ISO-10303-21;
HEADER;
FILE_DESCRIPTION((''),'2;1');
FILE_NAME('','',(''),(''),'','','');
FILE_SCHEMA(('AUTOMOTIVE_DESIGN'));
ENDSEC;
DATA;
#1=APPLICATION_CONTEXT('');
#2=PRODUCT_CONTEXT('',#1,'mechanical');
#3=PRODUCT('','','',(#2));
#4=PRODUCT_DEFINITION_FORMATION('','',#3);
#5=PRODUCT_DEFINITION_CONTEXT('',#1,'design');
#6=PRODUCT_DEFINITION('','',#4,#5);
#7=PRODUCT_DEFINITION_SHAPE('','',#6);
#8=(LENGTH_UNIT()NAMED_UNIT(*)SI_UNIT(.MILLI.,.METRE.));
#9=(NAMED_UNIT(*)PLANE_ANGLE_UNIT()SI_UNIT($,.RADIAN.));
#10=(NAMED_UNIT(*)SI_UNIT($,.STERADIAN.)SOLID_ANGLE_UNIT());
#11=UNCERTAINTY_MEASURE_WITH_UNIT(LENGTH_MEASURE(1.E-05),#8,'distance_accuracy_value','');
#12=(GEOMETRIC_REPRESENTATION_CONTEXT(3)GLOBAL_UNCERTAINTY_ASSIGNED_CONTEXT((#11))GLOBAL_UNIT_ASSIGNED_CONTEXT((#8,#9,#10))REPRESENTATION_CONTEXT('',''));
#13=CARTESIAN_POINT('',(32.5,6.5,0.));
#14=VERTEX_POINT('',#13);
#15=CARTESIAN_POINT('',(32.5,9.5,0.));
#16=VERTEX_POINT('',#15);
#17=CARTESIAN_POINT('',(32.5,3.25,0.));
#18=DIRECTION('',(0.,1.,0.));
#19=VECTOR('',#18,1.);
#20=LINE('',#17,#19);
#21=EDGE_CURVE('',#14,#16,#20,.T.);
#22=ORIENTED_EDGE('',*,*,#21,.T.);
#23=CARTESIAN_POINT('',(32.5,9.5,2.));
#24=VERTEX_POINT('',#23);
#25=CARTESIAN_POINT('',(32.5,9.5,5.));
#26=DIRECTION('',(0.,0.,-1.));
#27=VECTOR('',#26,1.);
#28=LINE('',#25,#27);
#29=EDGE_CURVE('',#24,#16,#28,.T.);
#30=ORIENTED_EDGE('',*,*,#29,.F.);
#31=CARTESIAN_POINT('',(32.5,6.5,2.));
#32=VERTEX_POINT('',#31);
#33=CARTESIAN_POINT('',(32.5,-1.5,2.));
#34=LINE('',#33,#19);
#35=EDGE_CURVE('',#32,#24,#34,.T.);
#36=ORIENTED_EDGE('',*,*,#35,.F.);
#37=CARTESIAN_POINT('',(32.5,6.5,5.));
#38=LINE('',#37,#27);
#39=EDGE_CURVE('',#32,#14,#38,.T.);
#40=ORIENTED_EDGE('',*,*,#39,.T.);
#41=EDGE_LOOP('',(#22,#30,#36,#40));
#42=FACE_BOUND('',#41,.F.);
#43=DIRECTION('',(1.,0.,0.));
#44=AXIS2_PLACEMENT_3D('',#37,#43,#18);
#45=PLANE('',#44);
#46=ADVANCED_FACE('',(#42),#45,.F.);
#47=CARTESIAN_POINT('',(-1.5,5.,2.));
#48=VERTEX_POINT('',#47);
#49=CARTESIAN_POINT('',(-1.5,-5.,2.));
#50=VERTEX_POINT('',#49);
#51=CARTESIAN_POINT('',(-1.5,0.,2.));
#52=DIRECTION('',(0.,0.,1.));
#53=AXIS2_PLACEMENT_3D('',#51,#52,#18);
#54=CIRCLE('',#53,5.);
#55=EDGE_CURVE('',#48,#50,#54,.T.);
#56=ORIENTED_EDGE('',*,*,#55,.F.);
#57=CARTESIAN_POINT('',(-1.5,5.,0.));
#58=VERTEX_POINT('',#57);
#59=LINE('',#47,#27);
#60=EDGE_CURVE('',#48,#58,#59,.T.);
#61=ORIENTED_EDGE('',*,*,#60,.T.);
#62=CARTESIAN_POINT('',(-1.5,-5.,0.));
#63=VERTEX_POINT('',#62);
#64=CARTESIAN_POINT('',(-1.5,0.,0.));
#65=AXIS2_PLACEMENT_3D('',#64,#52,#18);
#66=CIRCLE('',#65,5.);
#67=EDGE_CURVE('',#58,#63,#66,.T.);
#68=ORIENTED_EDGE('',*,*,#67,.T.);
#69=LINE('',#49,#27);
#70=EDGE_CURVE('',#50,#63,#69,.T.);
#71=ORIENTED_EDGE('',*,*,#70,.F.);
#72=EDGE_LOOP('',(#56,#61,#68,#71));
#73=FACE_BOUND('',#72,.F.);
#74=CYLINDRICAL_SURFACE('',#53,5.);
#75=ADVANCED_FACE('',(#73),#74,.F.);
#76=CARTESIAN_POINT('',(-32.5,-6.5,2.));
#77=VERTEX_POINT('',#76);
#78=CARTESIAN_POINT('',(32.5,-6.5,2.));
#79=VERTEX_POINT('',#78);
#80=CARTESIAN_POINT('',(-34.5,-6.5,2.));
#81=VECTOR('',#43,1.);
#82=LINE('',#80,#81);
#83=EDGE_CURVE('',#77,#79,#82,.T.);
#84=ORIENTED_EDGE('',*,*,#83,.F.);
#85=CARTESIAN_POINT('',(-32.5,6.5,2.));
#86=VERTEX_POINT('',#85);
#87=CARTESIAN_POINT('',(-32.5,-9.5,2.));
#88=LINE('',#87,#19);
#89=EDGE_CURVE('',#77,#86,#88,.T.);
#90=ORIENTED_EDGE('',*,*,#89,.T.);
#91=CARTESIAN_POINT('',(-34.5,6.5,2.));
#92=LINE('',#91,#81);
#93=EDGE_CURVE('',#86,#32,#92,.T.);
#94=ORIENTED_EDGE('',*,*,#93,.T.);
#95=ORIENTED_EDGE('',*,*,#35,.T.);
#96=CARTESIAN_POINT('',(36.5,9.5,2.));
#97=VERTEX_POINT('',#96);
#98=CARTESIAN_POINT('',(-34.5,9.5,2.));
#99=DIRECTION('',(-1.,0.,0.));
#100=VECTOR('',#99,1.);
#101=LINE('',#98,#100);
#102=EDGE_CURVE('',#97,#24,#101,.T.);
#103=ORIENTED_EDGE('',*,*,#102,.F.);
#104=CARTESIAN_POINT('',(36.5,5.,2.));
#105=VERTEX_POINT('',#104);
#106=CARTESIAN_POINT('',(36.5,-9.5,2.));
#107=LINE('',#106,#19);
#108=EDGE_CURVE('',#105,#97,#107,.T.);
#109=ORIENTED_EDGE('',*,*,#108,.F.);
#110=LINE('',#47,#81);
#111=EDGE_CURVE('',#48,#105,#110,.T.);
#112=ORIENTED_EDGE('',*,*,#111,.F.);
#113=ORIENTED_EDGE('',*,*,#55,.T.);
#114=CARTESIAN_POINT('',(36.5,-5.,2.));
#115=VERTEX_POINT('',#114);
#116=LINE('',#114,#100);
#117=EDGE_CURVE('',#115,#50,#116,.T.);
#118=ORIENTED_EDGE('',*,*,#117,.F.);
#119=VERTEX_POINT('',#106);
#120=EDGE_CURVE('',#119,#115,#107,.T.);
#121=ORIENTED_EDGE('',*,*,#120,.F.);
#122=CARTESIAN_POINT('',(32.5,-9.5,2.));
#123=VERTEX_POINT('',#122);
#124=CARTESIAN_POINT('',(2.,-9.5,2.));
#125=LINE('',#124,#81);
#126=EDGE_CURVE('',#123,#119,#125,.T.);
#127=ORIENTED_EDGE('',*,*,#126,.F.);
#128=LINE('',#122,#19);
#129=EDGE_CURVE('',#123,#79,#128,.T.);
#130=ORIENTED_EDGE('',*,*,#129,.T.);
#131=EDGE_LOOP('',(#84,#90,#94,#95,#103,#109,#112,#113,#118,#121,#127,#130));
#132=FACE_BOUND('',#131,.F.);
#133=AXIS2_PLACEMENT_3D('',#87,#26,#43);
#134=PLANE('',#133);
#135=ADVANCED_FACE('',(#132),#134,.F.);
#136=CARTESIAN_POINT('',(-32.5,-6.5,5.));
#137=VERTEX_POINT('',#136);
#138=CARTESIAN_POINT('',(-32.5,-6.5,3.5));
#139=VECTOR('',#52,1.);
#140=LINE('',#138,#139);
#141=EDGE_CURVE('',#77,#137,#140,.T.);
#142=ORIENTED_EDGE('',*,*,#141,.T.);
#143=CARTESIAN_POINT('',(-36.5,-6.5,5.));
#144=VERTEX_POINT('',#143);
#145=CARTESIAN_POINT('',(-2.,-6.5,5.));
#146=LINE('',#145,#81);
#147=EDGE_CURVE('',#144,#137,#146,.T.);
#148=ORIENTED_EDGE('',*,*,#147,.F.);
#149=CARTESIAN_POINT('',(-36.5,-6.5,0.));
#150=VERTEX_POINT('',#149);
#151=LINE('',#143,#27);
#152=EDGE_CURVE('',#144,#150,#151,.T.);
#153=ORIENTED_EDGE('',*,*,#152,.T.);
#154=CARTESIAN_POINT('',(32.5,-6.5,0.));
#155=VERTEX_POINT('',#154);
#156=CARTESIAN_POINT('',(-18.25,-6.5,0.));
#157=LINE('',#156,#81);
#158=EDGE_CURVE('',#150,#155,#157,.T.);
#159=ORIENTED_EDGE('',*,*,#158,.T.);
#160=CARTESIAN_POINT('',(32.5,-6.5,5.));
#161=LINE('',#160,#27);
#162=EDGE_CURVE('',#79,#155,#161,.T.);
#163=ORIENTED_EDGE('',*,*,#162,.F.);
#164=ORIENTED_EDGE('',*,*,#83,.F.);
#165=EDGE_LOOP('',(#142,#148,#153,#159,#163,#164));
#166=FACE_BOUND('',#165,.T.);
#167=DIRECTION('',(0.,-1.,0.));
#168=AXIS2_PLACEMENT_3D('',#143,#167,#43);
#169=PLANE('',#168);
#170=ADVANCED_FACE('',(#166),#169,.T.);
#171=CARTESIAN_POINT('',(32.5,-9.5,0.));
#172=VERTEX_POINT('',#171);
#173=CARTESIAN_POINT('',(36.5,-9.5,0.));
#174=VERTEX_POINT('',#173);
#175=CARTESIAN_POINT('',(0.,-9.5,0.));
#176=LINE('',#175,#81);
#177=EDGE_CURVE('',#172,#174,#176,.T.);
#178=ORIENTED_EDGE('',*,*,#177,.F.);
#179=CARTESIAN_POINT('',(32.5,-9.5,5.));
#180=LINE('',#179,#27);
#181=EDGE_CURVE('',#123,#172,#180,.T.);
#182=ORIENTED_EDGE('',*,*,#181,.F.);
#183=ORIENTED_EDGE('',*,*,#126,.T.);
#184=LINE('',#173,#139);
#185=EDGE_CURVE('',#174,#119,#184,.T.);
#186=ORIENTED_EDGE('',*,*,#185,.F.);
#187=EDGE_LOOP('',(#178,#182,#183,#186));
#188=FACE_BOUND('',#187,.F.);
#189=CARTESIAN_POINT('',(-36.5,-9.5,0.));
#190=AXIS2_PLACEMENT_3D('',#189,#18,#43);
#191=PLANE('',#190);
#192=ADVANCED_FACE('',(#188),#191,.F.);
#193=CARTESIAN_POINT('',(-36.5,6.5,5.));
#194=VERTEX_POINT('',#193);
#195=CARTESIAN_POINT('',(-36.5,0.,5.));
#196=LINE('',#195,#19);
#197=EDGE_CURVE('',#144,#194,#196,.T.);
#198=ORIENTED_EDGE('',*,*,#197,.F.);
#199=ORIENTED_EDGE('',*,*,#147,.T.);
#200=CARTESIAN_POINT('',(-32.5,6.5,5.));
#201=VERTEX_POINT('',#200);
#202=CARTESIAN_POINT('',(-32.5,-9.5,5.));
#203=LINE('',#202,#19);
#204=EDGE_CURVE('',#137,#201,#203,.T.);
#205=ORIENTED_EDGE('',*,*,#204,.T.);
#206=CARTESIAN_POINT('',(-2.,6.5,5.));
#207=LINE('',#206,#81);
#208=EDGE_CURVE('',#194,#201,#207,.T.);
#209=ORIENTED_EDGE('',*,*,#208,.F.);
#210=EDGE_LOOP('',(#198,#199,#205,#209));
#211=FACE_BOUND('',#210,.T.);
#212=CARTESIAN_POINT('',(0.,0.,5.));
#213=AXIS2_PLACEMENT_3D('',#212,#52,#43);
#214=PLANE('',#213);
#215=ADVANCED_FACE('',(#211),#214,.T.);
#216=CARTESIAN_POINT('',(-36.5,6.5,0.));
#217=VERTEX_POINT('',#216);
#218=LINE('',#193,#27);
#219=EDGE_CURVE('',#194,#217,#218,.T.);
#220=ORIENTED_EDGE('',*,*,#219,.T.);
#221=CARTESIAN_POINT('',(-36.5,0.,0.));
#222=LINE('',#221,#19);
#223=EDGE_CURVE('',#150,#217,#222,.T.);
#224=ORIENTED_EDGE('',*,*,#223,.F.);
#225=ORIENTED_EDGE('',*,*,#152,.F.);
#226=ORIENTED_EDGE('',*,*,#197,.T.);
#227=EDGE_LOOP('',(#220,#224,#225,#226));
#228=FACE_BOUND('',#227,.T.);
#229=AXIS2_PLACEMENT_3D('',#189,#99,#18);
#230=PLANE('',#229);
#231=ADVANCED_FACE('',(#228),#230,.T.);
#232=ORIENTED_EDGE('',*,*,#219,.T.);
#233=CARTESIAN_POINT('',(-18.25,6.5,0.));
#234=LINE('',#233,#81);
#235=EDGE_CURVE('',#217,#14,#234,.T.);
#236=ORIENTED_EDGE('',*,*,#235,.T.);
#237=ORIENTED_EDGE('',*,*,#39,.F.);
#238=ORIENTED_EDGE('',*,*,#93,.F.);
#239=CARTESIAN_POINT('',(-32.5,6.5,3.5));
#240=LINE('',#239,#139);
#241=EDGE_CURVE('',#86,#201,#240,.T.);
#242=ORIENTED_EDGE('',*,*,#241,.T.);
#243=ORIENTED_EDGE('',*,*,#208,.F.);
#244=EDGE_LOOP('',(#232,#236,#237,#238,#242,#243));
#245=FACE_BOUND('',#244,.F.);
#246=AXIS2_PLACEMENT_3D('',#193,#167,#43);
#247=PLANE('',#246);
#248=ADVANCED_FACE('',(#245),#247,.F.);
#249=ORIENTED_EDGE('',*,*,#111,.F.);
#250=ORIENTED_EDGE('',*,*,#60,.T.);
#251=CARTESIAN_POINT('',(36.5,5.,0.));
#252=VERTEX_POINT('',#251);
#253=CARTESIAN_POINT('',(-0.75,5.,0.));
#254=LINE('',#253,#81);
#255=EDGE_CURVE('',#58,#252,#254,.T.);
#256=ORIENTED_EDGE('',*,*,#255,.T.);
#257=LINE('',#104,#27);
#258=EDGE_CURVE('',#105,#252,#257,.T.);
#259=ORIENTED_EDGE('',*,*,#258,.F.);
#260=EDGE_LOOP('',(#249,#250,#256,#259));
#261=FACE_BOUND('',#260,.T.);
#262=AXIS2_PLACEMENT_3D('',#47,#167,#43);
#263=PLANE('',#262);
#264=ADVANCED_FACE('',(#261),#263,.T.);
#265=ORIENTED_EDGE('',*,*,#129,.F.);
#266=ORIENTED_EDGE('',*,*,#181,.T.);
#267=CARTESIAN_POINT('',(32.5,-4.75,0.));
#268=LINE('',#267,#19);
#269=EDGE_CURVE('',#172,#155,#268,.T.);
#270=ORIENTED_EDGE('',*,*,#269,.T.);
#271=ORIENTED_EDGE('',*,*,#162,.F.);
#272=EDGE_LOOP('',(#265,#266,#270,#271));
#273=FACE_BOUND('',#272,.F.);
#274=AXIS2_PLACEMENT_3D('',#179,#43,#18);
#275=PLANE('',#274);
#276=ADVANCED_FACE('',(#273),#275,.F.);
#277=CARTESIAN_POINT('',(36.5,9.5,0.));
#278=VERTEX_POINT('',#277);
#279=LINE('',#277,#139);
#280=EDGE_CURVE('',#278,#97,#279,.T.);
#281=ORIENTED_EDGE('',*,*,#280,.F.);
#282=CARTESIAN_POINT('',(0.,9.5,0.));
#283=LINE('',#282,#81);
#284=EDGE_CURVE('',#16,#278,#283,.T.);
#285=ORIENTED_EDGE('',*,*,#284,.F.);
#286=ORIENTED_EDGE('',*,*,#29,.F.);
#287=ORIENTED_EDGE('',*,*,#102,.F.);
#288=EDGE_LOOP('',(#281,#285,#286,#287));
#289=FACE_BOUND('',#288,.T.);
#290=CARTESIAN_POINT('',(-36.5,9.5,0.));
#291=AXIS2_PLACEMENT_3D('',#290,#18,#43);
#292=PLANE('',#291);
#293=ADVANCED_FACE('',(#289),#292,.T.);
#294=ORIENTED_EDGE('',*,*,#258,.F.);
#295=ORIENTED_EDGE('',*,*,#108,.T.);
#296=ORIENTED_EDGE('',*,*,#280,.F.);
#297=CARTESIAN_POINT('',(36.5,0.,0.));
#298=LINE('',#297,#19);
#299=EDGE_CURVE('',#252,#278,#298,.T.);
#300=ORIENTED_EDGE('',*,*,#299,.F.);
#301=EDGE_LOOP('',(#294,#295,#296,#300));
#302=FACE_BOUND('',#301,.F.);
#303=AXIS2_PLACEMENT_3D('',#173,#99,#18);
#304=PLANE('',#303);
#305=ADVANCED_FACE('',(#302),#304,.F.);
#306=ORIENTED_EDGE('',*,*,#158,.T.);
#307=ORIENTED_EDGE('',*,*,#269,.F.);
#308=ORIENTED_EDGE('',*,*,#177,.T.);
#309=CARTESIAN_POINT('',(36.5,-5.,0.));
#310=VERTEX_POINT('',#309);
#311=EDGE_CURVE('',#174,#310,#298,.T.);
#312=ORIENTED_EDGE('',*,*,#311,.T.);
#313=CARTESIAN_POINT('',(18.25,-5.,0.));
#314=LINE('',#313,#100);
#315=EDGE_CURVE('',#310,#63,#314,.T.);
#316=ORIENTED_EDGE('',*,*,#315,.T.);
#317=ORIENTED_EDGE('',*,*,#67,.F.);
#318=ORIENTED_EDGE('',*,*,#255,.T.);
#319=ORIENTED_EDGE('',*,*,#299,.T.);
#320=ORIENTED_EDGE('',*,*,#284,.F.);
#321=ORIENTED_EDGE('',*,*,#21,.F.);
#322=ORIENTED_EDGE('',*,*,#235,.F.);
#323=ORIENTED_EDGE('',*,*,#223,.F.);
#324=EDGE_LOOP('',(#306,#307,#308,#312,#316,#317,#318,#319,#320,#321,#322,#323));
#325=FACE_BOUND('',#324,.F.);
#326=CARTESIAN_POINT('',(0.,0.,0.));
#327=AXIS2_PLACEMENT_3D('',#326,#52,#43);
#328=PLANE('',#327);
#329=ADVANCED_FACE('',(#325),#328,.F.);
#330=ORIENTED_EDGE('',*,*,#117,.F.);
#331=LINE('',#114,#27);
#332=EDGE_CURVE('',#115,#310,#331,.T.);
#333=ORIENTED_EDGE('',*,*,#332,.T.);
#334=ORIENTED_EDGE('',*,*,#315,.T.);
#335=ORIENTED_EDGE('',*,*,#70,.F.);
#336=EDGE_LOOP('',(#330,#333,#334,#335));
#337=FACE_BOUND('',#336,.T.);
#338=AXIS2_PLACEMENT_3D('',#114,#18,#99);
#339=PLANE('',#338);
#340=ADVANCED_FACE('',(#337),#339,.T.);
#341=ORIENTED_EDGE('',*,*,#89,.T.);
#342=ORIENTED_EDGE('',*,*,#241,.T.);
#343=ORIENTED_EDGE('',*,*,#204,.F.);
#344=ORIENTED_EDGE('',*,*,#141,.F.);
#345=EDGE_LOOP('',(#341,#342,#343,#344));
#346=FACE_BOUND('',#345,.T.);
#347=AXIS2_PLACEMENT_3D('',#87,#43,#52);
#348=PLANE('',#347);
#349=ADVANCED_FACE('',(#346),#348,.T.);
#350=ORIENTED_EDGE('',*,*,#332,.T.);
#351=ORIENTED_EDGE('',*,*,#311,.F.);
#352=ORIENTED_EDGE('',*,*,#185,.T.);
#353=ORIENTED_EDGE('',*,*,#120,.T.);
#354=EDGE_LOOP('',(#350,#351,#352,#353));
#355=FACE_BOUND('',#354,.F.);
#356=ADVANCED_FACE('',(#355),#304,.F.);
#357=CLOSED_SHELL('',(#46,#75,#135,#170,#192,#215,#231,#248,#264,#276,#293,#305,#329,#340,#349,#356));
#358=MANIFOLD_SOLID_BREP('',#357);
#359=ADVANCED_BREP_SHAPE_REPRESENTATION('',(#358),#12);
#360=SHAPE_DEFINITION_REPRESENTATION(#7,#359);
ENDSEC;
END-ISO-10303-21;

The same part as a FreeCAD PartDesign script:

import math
import FreeCAD as App
import Part
import Sketcher

V = App.Vector

doc = App.newDocument("Part")
body = doc.addObject("PartDesign::Body", "Body")

sketch1 = doc.addObject("Sketcher::SketchObject", "Sketch")
body.addObject(sketch1)
sketch1.AttachmentSupport = (doc.XY_Plane, [""])
sketch1.MapMode = "FlatFace"
sketch1.addGeometry([
    Part.LineSegment(V(-36, 10, 0), V(-36, -10, 0)),
    Part.LineSegment(V(-36, -10, 0), V(36, -10, 0)),
    Part.LineSegment(V(36, -10, 0), V(36, 10, 0)),
    Part.LineSegment(V(36, 10, 0), V(-36, 10, 0)),
], False)
sketch1.addConstraint([
    Sketcher.Constraint("Coincident", 0, 2, 1, 1),
    Sketcher.Constraint("Coincident", 1, 2, 2, 1),
    Sketcher.Constraint("Coincident", 2, 2, 3, 1),
    Sketcher.Constraint("Coincident", 3, 2, 0, 1),
    Sketcher.Constraint("Vertical", 0),
    Sketcher.Constraint("Horizontal", 1),
    Sketcher.Constraint("Vertical", 2),
    Sketcher.Constraint("Horizontal", 3),
    Sketcher.Constraint("Symmetric", 0, 2, 2, 2, -1, 1),
    Sketcher.Constraint("DistanceX", 1, 1, 1, 2, 73.0),
    Sketcher.Constraint("DistanceY", 0, 2, 0, 1, 19.0),
])
pad1 = doc.addObject("PartDesign::Pad", "Pad")
body.addObject(pad1)
pad1.Profile = sketch1
pad1.Length = 5

sketch2 = doc.addObject("Sketcher::SketchObject", "Sketch001")
body.addObject(sketch2)
sketch2.AttachmentSupport = (doc.XY_Plane, [""])
sketch2.MapMode = "FlatFace"
sketch2.AttachmentOffset = App.Placement(V(0, 0, 5), App.Rotation())
sketch2.addGeometry([
    Part.LineSegment(V(-36.5, 9.5, 0), V(-36.5, 6.5, 0)),
    Part.LineSegment(V(-36.5, 6.5, 0), V(32.5, 6.5, 0)),
    Part.LineSegment(V(32.5, 6.5, 0), V(32.5, 9.5, 0)),
    Part.LineSegment(V(32.5, 9.5, 0), V(-36.5, 9.5, 0)),
    Part.LineSegment(V(-36.5, -6.5, 0), V(-36.5, -9.5, 0)),
    Part.LineSegment(V(-36.5, -9.5, 0), V(32.5, -9.5, 0)),
    Part.LineSegment(V(32.5, -9.5, 0), V(32.5, -6.5, 0)),
    Part.LineSegment(V(32.5, -6.5, 0), V(-36.5, -6.5, 0)),
], False)
sketch2.addConstraint([
    Sketcher.Constraint("Coincident", 0, 2, 1, 1),
    Sketcher.Constraint("Coincident", 1, 2, 2, 1),
    Sketcher.Constraint("Coincident", 2, 2, 3, 1),
    Sketcher.Constraint("Coincident", 3, 2, 0, 1),
    Sketcher.Constraint("Coincident", 4, 2, 5, 1),
    Sketcher.Constraint("Coincident", 5, 2, 6, 1),
    Sketcher.Constraint("Coincident", 6, 2, 7, 1),
    Sketcher.Constraint("Coincident", 7, 2, 4, 1),
    Sketcher.Constraint("Vertical", 0),
    Sketcher.Constraint("Horizontal", 1),
    Sketcher.Constraint("Vertical", 2),
    Sketcher.Constraint("Horizontal", 3),
    Sketcher.Constraint("Vertical", 4),
    Sketcher.Constraint("Horizontal", 5),
    Sketcher.Constraint("Vertical", 6),
    Sketcher.Constraint("Horizontal", 7),
    Sketcher.Constraint("Symmetric", 3, 2, 4, 2, -1),
    Sketcher.Constraint("Symmetric", 1, 2, 6, 2, -1),
    Sketcher.Constraint("DistanceX", 1, 1, 1, 2, 69.0),
    Sketcher.Constraint("DistanceY", 0, 2, 0, 1, 3.0),
    Sketcher.Constraint("DistanceY", 4, 2, 0, 2, 16.0),
    Sketcher.Constraint("DistanceX", 0, 2, -1, 1, 36.5),
])
pocket1 = doc.addObject("PartDesign::Pocket", "Pocket")
body.addObject(pocket1)
pocket1.Profile = sketch2
pocket1.Type = "ThroughAll"

sketch3 = doc.addObject("Sketcher::SketchObject", "Sketch002")
body.addObject(sketch3)
sketch3.AttachmentSupport = (doc.XZ_Plane, [""])
sketch3.MapMode = "FlatFace"
sketch3.AttachmentOffset = App.Placement(V(0, 0, 9.5), App.Rotation())
sketch3.addGeometry([
    Part.LineSegment(V(-32.5, 5, 0), V(-32.5, 2, 0)),
    Part.LineSegment(V(-32.5, 2, 0), V(36.5, 2, 0)),
    Part.LineSegment(V(36.5, 2, 0), V(36.5, 5, 0)),
    Part.LineSegment(V(36.5, 5, 0), V(-32.5, 5, 0)),
], False)
sketch3.addConstraint([
    Sketcher.Constraint("Coincident", 0, 2, 1, 1),
    Sketcher.Constraint("Coincident", 1, 2, 2, 1),
    Sketcher.Constraint("Coincident", 2, 2, 3, 1),
    Sketcher.Constraint("Coincident", 3, 2, 0, 1),
    Sketcher.Constraint("Vertical", 0),
    Sketcher.Constraint("Horizontal", 1),
    Sketcher.Constraint("Vertical", 2),
    Sketcher.Constraint("Horizontal", 3),
    Sketcher.Constraint("DistanceX", 1, 1, 1, 2, 69.0),
    Sketcher.Constraint("DistanceY", 0, 2, 0, 1, 3.0),
    Sketcher.Constraint("DistanceY", -1, 1, 0, 2, 2.0),
    Sketcher.Constraint("DistanceX", 0, 2, -1, 1, 32.5),
])
pocket2 = doc.addObject("PartDesign::Pocket", "Pocket001")
body.addObject(pocket2)
pocket2.Profile = sketch3
pocket2.Type = "ThroughAll"

sketch4 = doc.addObject("Sketcher::SketchObject", "Sketch003")
body.addObject(sketch4)
sketch4.AttachmentSupport = (doc.XY_Plane, [""])
sketch4.MapMode = "FlatFace"
sketch4.AttachmentOffset = App.Placement(V(0, 0, 2), App.Rotation())
sketch4.addGeometry([
    Part.LineSegment(V(36, 5, 0), V(-2, 5, 0)),
    Part.ArcOfCircle(Part.Circle(V(-2, 0, 0), V(0, 0, 1), 5), math.radians(90), math.radians(270)),
    Part.LineSegment(V(-2, -5, 0), V(36, -5, 0)),
    Part.LineSegment(V(36, -5, 0), V(36, 5, 0)),
], False)
sketch4.addConstraint([
    Sketcher.Constraint("Tangent", 0, 2, 1, 1),
    Sketcher.Constraint("Tangent", 1, 2, 2, 1),
    Sketcher.Constraint("Coincident", 2, 2, 3, 1),
    Sketcher.Constraint("Coincident", 3, 2, 0, 1),
    Sketcher.Constraint("Horizontal", 0),
    Sketcher.Constraint("Horizontal", 2),
    Sketcher.Constraint("Vertical", 3),
    Sketcher.Constraint("PointOnObject", 1, 3, -1),
    Sketcher.Constraint("Radius", 1, 5.0),
    Sketcher.Constraint("DistanceX", 0, 2, 0, 1, 38.0),
    Sketcher.Constraint("DistanceX", 1, 3, -1, 1, 1.5),
])
pocket3 = doc.addObject("PartDesign::Pocket", "Pocket002")
body.addObject(pocket3)
pocket3.Profile = sketch4
pocket3.Type = "ThroughAll"

doc.recompute()
